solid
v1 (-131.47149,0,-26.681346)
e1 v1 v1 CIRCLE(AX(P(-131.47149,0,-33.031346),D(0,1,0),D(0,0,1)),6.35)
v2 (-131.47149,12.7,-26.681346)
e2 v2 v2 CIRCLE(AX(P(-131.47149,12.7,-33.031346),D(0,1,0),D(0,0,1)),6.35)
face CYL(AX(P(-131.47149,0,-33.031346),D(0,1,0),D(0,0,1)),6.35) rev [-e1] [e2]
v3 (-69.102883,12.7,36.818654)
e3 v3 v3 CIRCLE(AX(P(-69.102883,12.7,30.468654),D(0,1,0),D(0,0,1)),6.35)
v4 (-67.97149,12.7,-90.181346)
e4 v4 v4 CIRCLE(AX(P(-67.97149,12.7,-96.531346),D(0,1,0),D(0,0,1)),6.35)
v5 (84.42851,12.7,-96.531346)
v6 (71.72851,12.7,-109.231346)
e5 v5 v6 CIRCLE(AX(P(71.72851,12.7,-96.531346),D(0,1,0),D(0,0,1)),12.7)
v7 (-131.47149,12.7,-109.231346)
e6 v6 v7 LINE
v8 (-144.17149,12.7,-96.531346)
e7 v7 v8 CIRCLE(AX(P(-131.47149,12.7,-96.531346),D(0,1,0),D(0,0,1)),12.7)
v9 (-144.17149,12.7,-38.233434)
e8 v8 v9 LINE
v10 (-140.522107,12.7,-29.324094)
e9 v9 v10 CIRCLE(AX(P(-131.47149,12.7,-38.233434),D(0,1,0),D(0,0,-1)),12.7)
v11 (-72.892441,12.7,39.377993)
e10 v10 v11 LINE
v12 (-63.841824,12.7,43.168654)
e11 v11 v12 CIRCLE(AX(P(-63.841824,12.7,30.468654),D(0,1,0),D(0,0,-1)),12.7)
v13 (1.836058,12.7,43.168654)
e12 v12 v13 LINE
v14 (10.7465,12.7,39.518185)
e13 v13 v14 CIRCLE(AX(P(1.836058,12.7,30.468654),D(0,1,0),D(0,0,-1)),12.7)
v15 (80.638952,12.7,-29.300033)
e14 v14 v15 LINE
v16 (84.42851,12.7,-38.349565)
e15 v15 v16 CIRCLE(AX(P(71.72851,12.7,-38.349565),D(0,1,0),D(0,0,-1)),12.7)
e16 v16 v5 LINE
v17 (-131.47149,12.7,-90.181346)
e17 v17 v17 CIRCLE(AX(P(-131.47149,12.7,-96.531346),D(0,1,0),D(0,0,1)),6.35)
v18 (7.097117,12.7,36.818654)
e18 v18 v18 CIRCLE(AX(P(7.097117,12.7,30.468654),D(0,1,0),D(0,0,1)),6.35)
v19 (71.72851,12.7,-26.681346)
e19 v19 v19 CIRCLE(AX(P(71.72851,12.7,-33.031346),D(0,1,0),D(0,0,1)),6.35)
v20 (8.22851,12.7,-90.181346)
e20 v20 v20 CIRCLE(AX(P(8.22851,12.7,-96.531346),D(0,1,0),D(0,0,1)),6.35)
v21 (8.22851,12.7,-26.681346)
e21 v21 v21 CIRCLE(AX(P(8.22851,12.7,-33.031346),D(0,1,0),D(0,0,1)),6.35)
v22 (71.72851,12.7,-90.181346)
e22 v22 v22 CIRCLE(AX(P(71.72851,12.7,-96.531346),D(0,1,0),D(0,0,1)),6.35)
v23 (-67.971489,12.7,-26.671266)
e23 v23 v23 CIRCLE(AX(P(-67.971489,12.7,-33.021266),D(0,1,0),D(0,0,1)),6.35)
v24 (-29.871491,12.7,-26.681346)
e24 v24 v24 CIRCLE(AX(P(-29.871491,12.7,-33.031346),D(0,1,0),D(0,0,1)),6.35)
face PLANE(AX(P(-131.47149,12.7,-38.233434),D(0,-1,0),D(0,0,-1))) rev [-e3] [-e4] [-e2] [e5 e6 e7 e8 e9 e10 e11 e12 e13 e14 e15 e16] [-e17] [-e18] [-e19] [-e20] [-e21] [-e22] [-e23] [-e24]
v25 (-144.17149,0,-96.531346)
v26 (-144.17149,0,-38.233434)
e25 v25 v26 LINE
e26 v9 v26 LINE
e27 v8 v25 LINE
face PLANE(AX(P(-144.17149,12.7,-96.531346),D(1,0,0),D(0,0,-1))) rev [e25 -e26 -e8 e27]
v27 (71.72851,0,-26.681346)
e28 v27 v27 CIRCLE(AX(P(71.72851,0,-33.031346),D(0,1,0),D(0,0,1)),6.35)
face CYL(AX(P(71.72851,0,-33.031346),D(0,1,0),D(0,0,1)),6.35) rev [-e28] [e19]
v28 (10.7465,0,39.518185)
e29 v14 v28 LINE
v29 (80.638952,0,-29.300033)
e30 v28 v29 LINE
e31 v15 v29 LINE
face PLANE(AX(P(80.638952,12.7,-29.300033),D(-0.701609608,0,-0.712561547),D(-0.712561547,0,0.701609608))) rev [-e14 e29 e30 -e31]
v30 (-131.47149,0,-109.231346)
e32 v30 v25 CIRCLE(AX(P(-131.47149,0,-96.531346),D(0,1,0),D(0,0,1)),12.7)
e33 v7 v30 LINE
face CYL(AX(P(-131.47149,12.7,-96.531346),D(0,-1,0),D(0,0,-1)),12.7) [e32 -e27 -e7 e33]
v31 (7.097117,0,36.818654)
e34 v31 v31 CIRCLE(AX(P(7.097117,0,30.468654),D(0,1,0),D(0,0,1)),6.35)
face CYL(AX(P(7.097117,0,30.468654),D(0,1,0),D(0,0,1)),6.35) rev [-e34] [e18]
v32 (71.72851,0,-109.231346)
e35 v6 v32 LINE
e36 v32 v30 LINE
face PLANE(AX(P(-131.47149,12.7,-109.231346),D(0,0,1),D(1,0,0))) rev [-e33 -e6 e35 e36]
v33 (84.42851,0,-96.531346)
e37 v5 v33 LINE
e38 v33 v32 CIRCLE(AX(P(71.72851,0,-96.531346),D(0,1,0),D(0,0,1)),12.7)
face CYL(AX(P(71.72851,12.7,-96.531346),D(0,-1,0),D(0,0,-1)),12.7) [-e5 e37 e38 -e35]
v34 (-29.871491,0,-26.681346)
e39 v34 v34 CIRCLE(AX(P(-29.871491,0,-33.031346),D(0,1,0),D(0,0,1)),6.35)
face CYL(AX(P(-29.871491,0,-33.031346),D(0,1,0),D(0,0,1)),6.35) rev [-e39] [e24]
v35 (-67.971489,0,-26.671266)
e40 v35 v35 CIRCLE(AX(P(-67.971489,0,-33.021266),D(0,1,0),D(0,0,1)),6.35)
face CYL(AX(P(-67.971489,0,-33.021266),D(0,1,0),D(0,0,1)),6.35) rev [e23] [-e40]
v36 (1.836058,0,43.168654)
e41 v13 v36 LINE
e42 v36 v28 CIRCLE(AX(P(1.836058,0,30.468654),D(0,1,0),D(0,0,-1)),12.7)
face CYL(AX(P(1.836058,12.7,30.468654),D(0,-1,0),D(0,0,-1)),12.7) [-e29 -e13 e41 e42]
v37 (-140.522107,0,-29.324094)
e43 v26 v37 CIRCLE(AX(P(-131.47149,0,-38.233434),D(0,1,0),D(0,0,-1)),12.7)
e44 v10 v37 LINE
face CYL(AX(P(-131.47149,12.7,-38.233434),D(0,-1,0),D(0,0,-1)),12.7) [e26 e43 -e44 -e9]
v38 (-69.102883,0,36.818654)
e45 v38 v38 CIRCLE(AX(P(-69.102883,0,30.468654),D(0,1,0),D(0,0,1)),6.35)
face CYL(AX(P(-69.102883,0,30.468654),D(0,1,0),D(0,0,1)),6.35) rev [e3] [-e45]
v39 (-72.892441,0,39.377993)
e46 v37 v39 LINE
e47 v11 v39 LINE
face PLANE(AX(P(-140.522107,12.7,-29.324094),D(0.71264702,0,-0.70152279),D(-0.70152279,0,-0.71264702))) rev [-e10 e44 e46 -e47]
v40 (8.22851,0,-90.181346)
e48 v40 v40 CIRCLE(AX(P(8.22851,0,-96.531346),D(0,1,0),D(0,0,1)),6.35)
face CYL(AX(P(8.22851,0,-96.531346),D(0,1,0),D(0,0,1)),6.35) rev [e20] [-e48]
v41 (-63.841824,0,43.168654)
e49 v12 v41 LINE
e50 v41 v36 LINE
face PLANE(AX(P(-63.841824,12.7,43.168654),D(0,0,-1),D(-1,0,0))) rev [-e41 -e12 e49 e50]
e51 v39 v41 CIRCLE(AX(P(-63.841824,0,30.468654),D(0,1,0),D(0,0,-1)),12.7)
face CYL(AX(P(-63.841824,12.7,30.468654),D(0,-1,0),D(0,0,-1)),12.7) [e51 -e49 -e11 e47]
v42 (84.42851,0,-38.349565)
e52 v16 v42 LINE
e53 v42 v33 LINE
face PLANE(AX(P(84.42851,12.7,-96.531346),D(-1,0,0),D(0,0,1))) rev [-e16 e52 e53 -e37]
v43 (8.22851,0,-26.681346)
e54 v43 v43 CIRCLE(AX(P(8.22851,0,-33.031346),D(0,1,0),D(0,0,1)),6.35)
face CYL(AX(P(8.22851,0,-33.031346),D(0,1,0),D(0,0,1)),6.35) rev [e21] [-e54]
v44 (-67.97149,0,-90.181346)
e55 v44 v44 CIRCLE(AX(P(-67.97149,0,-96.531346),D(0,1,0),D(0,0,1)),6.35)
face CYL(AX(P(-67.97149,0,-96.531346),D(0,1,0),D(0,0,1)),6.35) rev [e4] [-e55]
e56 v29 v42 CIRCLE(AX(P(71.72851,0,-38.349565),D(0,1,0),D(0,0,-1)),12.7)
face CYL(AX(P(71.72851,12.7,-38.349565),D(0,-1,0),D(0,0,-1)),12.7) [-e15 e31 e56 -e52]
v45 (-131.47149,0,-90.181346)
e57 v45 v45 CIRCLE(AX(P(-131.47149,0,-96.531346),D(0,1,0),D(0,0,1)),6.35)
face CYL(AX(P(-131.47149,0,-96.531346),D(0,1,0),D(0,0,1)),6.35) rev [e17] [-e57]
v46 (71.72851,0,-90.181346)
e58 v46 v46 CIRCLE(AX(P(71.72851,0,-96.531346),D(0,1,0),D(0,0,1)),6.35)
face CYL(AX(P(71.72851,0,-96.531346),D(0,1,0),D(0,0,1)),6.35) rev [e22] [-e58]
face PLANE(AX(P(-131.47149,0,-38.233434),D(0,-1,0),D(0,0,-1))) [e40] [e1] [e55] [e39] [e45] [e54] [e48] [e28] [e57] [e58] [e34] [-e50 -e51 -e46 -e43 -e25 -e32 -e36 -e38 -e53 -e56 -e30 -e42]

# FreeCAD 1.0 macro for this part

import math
import FreeCAD as App
import Part
import Sketcher

V = App.Vector
Q = App.Units.Quantity

doc = App.newDocument("Part")
body = doc.addObject("PartDesign::Body", "Body")

# Sketch on XZ plane
sketch1 = body.newObject("Sketcher::SketchObject", "Sketch")
sketch1.AttachmentSupport = (doc.getObject("XZ_Plane"), [""])
sketch1.MapMode = "FlatFace"
sketch1.addGeometry(Part.LineSegment(V(72, -109, 0), V(-131, -109, 0)), False)
sketch1.addGeometry(Part.ArcOfCircle(Part.Circle(V(-131, -97, 0), V(0, 0, 1), 13), math.radians(180), math.radians(270)), False)
sketch1.addGeometry(Part.LineSegment(V(-144, -97, 0), V(-144, -38, 0)), False)
sketch1.addGeometry(Part.ArcOfCircle(Part.Circle(V(-131, -38, 0), V(0, 0, 1), 13), math.radians(135), math.radians(180)), False)
sketch1.addGeometry(Part.LineSegment(V(-141, -29, 0), V(-73, 39, 0)), False)
sketch1.addGeometry(Part.ArcOfCircle(Part.Circle(V(-64, 30, 0), V(0, 0, 1), 13), math.radians(90), math.radians(135)), False)
sketch1.addGeometry(Part.LineSegment(V(-64, 43, 0), V(2, 43, 0)), False)
sketch1.addGeometry(Part.ArcOfCircle(Part.Circle(V(2, 30, 0), V(0, 0, 1), 13), math.radians(45), math.radians(90)), False)
sketch1.addGeometry(Part.LineSegment(V(11, 40, 0), V(81, -29, 0)), False)
sketch1.addGeometry(Part.ArcOfCircle(Part.Circle(V(72, -38, 0), V(0, 0, 1), 13), math.radians(0), math.radians(45)), False)
sketch1.addGeometry(Part.LineSegment(V(84, -38, 0), V(84, -97, 0)), False)
sketch1.addGeometry(Part.ArcOfCircle(Part.Circle(V(72, -97, 0), V(0, 0, 1), 13), math.radians(-90), math.radians(0)), False)
sketch1.addConstraint(Sketcher.Constraint("Tangent", 0, 2, 1, 2))
sketch1.addConstraint(Sketcher.Constraint("Tangent", 1, 1, 2, 1))
sketch1.addConstraint(Sketcher.Constraint("Tangent", 2, 2, 3, 2))
sketch1.addConstraint(Sketcher.Constraint("Tangent", 3, 1, 4, 1))
sketch1.addConstraint(Sketcher.Constraint("Tangent", 4, 2, 5, 2))
sketch1.addConstraint(Sketcher.Constraint("Tangent", 5, 1, 6, 1))
sketch1.addConstraint(Sketcher.Constraint("Tangent", 6, 2, 7, 2))
sketch1.addConstraint(Sketcher.Constraint("Tangent", 7, 1, 8, 1))
sketch1.addConstraint(Sketcher.Constraint("Tangent", 8, 2, 9, 2))
sketch1.addConstraint(Sketcher.Constraint("Tangent", 9, 1, 10, 1))
sketch1.addConstraint(Sketcher.Constraint("Tangent", 10, 2, 11, 2))
sketch1.addConstraint(Sketcher.Constraint("Tangent", 11, 1, 0, 1))
sketch1.addConstraint(Sketcher.Constraint("Horizontal", 0))
sketch1.addConstraint(Sketcher.Constraint("Vertical", 2))
sketch1.addConstraint(Sketcher.Constraint("Horizontal", 6))
sketch1.addConstraint(Sketcher.Constraint("Vertical", 10))
sketch1.addConstraint(Sketcher.Constraint("Equal", 1, 3))
sketch1.addConstraint(Sketcher.Constraint("Equal", 3, 5))
sketch1.addConstraint(Sketcher.Constraint("Equal", 5, 7))
sketch1.addConstraint(Sketcher.Constraint("Equal", 7, 9))
sketch1.addConstraint(Sketcher.Constraint("Equal", 9, 11))
sketch1.addConstraint(Sketcher.Constraint("Radius", 1, Q("0.5 in")))
sketch1.addConstraint(Sketcher.Constraint("DistanceX", 0, 2, 0, 1, Q("8 in")))
sketch1.addConstraint(Sketcher.Constraint("DistanceY", 1, 3, 5, 3, Q("5 in")))
sketch1.addConstraint(Sketcher.Constraint("DistanceX", 6, 1, 6, 2, Q("65.677881 mm")))
sketch1.addConstraint(Sketcher.Constraint("DistanceY", 10, 2, 10, 1, Q("58.181782 mm")))
sketch1.addConstraint(Sketcher.Constraint("DistanceX", -1, 1, 7, 1, Q("10.7465 mm")))
sketch1.addConstraint(Sketcher.Constraint("DistanceX", 4, 2, 7, 3, Q("74.728499 mm")))
sketch1.addConstraint(Sketcher.Constraint("Distance", 4, Q("96.40409 mm")))
sketch1.addConstraint(Sketcher.Constraint("DistanceY", 1, 3, -1, 1, Q("96.531346 mm")))
pad1 = body.newObject("PartDesign::Pad", "Pad")
pad1.Profile = sketch1
pad1.Length = Q("0.5 in")
pad1.Reversed = True

# Sketch on XZ plane
sketch2 = body.newObject("Sketcher::SketchObject", "Sketch001")
sketch2.AttachmentSupport = (doc.getObject("XZ_Plane"), [""])
sketch2.MapMode = "FlatFace"
sketch2.AttachmentOffset = App.Placement(V(0, 0, -0.5 * 25.4), App.Rotation())
sketch2.addGeometry(Part.Circle(V(-69, 30, 0), V(0, 0, 1), 6), False)
sketch2.addGeometry(Part.Circle(V(7, 30, 0), V(0, 0, 1), 6), False)
sketch2.addGeometry(Part.Circle(V(-68, -97, 0), V(0, 0, 1), 6), False)
sketch2.addGeometry(Part.Circle(V(8, -97, 0), V(0, 0, 1), 6), False)
sketch2.addGeometry(Part.Circle(V(-68, -33, 0), V(0, 0, 1), 6), False)
sketch2.addGeometry(Part.Circle(V(8, -33, 0), V(0, 0, 1), 6), False)
sketch2.addGeometry(Part.Circle(V(-131, -97, 0), V(0, 0, 1), 6), False)
sketch2.addGeometry(Part.Circle(V(-131, -33, 0), V(0, 0, 1), 6), False)
sketch2.addGeometry(Part.Circle(V(72, -97, 0), V(0, 0, 1), 6), False)
sketch2.addGeometry(Part.Circle(V(72, -33, 0), V(0, 0, 1), 6), False)
sketch2.addGeometry(Part.Circle(V(-30, -33, 0), V(0, 0, 1), 6), False)
sketch2.addConstraint(Sketcher.Constraint("Equal", 0, 1))
sketch2.addConstraint(Sketcher.Constraint("Equal", 1, 2))
sketch2.addConstraint(Sketcher.Constraint("Equal", 2, 3))
sketch2.addConstraint(Sketcher.Constraint("Equal", 3, 4))
sketch2.addConstraint(Sketcher.Constraint("Equal", 4, 5))
sketch2.addConstraint(Sketcher.Constraint("Equal", 5, 6))
sketch2.addConstraint(Sketcher.Constraint("Equal", 6, 7))
sketch2.addConstraint(Sketcher.Constraint("Equal", 7, 8))
sketch2.addConstraint(Sketcher.Constraint("Equal", 8, 9))
sketch2.addConstraint(Sketcher.Constraint("Equal", 9, 10))
sketch2.addConstraint(Sketcher.Constraint("Horizontal", 0, 3, 1, 3))
sketch2.addConstraint(Sketcher.Constraint("Horizontal", 2, 3, 3, 3))
sketch2.addConstraint(Sketcher.Constraint("Horizontal", 3, 3, 6, 3))
sketch2.addConstraint(Sketcher.Constraint("Horizontal", 5, 3, 7, 3))
sketch2.addConstraint(Sketcher.Constraint("Horizontal", 6, 3, 8, 3))
sketch2.addConstraint(Sketcher.Constraint("Horizontal", 7, 3, 9, 3))
sketch2.addConstraint(Sketcher.Constraint("Horizontal", 9, 3, 10, 3))
sketch2.addConstraint(Sketcher.Constraint("Vertical", 2, 3, 4, 3))
sketch2.addConstraint(Sketcher.Constraint("Vertical", 3, 3, 5, 3))
sketch2.addConstraint(Sketcher.Constraint("Vertical", 6, 3, 7, 3))
sketch2.addConstraint(Sketcher.Constraint("Vertical", 8, 3, 9, 3))
sketch2.addConstraint(Sketcher.Constraint("Diameter", 0, Q("0.5 in")))
sketch2.addConstraint(Sketcher.Constraint("DistanceX", 0, 3, 1, 3, Q("3 in")))
sketch2.addConstraint(Sketcher.Constraint("DistanceY", 2, 3, 0, 3, Q("5 in")))
sketch2.addConstraint(Sketcher.Constraint("DistanceX", 2, 3, 3, 3, Q("3 in")))
sketch2.addConstraint(Sketcher.Constraint("DistanceY", 3, 3, 5, 3, Q("2.5 in")))
sketch2.addConstraint(Sketcher.Constraint("DistanceX", 6, 3, 2, 3, Q("2.5 in")))
sketch2.addConstraint(Sketcher.Constraint("DistanceX", 3, 3, 8, 3, Q("2.5 in")))
sketch2.addConstraint(Sketcher.Constraint("DistanceX", 4, 3, 10, 3, Q("1.4999999 in")))
sketch2.addConstraint(Sketcher.Constraint("DistanceX", 2, 3, -1, 1, Q("67.97149 mm")))
sketch2.addConstraint(Sketcher.Constraint("DistanceY", 4, 3, 0, 3, Q("63.48992 mm")))
sketch2.addConstraint(Sketcher.Constraint("DistanceX", 0, 3, -1, 1, Q("69.102883 mm")))
sketch2.addConstraint(Sketcher.Constraint("DistanceY", -1, 1, 0, 3, Q("30.468654 mm")))
pocket1 = body.newObject("PartDesign::Pocket", "Pocket")
pocket1.Profile = sketch2
pocket1.Type = "ThroughAll"
pocket1.Reversed = True

doc.recompute()
